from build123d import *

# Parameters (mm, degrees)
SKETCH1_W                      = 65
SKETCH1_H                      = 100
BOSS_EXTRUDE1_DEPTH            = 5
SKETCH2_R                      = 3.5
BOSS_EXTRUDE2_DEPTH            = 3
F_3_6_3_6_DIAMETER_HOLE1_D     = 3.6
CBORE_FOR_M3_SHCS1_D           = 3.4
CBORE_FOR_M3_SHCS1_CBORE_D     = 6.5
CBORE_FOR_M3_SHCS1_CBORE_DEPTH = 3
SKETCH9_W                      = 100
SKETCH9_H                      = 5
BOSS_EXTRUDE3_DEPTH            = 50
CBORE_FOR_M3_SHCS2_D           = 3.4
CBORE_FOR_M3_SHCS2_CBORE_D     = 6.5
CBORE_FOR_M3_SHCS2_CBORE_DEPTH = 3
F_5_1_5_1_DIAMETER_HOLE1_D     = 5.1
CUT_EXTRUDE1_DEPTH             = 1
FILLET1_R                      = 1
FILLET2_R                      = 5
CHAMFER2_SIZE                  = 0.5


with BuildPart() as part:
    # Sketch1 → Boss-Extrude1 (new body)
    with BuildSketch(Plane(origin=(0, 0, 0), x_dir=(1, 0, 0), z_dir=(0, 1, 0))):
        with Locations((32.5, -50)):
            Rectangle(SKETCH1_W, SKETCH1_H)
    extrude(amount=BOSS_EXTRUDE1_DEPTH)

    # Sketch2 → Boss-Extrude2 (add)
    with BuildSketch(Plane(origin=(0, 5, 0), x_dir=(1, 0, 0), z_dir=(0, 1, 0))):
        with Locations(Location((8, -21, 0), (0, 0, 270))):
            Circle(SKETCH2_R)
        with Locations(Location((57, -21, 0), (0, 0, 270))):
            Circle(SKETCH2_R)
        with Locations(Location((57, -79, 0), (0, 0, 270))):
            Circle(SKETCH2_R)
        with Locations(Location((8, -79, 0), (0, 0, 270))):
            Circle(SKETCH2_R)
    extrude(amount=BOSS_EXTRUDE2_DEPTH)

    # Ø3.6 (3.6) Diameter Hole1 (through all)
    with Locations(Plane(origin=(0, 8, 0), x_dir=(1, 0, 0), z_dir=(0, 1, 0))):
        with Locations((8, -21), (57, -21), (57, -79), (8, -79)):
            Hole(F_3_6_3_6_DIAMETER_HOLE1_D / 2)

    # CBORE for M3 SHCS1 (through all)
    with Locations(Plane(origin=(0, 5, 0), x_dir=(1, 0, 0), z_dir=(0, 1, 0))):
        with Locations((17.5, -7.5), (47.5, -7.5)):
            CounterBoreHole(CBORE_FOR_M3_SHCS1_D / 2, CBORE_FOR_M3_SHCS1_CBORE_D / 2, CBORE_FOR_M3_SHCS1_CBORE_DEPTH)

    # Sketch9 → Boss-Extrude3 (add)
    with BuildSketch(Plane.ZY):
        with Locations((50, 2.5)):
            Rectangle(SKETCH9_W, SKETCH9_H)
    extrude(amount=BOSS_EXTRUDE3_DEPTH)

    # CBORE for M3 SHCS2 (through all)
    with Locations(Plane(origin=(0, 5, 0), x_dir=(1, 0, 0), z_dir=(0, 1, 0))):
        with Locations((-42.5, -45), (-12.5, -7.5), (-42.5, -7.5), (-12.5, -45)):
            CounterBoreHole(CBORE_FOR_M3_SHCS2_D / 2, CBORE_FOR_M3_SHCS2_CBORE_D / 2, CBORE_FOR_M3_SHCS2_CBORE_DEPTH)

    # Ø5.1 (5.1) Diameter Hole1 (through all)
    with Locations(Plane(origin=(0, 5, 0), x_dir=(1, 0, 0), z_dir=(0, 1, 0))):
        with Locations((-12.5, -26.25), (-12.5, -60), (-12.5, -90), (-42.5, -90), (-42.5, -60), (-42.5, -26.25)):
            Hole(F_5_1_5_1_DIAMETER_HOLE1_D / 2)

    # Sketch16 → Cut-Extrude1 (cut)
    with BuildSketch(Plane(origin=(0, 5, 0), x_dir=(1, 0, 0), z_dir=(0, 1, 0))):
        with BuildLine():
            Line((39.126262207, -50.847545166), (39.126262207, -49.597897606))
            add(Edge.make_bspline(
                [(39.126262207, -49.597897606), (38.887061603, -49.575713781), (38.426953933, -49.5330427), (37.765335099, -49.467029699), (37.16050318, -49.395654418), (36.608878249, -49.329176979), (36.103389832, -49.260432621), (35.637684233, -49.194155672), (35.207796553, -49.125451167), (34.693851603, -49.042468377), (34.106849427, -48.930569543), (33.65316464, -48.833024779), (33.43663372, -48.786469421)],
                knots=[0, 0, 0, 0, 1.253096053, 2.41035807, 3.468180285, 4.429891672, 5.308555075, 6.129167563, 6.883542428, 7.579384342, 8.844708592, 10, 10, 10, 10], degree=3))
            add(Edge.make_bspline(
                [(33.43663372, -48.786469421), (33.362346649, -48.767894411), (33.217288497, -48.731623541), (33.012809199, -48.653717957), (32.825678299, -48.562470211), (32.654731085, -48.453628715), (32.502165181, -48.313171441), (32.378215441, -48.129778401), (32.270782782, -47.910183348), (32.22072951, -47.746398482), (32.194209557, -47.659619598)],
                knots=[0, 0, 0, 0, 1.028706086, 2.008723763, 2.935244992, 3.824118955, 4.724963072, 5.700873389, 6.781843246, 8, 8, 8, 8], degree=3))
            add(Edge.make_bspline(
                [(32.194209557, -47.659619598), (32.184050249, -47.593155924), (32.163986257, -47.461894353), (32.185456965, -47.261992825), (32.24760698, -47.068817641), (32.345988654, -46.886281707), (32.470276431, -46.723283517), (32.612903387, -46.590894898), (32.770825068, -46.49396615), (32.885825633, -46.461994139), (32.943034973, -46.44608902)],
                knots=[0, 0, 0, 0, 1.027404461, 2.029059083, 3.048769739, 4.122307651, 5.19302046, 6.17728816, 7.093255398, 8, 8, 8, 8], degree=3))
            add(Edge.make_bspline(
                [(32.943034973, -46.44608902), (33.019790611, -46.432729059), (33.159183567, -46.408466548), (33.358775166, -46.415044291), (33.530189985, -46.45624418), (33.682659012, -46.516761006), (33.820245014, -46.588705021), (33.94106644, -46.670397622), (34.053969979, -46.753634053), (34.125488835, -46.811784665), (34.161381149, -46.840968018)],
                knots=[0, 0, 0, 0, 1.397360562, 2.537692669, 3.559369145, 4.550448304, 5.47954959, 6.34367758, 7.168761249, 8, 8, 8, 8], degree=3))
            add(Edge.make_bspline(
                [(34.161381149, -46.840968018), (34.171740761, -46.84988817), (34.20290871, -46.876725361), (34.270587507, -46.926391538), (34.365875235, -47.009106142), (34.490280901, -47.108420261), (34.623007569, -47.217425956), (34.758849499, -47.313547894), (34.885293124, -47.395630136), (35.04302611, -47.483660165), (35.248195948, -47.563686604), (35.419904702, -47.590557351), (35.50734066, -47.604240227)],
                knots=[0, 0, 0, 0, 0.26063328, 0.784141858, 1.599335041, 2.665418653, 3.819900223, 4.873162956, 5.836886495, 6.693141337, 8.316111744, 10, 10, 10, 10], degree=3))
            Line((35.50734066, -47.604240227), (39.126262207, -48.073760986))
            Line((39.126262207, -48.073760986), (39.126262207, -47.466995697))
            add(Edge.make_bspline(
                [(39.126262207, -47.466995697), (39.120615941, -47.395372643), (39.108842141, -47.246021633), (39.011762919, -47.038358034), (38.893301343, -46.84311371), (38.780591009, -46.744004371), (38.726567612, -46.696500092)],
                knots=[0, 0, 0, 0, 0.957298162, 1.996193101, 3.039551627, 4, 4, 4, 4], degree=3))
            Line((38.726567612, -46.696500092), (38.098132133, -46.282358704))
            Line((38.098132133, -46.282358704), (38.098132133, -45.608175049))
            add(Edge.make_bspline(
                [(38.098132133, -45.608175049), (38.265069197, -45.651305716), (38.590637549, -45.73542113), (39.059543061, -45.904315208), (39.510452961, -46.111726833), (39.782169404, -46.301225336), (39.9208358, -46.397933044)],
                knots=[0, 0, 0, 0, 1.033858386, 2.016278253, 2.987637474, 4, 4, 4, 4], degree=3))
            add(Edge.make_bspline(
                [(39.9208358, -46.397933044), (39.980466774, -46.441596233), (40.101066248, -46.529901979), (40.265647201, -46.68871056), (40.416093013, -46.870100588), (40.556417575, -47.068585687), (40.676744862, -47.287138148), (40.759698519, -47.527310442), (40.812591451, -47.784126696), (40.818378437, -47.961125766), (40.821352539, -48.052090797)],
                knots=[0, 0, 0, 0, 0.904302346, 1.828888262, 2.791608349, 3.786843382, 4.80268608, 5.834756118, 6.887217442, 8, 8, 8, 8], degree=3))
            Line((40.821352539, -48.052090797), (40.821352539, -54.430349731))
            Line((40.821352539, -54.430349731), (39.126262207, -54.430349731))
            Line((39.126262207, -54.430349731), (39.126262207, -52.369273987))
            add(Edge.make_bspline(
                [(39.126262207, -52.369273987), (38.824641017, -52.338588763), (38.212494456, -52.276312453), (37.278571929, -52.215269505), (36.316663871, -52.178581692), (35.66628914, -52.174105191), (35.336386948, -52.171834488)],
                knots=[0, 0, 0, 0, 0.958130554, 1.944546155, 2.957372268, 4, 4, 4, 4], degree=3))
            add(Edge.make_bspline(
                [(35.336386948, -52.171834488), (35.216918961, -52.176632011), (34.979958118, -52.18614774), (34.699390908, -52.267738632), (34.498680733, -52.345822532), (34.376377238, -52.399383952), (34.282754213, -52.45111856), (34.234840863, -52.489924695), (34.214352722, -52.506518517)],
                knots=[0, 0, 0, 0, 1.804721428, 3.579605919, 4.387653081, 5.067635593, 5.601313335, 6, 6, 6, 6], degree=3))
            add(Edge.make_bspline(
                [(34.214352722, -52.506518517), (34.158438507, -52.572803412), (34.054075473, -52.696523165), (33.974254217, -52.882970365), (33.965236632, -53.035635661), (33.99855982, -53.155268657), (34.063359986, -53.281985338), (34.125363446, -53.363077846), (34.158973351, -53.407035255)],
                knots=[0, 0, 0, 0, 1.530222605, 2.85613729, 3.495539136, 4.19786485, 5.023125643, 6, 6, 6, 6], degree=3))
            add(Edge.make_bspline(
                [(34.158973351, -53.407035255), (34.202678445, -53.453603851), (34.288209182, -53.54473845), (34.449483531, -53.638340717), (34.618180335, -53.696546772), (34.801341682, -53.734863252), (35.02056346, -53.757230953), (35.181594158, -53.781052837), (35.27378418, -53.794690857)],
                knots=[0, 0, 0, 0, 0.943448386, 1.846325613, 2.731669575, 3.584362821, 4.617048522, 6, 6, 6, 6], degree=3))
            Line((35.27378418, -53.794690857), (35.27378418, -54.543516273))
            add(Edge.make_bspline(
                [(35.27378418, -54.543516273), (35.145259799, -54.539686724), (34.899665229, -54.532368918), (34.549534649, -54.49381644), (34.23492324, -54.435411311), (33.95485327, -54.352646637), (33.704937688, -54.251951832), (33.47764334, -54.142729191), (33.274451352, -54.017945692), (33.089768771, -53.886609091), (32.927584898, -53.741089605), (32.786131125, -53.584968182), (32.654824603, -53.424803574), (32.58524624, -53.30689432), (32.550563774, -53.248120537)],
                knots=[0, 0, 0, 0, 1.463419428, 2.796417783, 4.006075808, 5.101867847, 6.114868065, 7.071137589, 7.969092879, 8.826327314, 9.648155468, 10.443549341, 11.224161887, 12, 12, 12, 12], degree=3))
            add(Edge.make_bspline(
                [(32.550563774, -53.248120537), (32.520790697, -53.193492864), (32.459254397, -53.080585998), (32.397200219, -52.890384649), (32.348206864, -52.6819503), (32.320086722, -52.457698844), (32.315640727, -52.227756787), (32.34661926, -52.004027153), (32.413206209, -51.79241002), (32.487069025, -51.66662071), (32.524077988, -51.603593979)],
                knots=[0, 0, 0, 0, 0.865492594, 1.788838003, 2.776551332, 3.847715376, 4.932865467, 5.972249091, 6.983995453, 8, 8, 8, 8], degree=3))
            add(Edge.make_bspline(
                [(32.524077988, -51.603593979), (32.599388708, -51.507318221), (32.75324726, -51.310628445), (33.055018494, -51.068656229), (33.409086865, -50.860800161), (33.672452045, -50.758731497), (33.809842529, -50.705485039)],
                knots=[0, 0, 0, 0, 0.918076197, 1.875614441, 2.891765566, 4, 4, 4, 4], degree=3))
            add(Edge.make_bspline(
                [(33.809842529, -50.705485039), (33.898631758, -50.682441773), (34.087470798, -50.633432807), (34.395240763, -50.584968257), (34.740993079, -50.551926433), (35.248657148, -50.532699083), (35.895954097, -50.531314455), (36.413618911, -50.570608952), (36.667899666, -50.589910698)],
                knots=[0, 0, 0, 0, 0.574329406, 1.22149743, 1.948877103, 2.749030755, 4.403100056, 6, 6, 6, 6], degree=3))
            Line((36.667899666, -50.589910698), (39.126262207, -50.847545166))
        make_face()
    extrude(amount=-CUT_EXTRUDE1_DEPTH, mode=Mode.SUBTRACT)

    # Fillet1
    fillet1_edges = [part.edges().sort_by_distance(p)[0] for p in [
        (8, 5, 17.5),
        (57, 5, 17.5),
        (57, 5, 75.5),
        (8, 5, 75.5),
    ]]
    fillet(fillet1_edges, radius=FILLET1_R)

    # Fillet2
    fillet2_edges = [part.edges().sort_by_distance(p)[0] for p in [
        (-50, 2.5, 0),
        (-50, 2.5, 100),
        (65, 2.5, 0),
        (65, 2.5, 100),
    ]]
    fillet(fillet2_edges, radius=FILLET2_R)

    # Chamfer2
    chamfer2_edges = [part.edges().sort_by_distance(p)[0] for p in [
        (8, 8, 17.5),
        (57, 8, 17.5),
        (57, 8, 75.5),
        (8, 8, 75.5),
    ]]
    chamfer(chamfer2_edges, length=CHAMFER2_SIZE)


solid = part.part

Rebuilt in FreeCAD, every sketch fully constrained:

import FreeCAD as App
import Part
import Sketcher
Q = App.Units.Quantity


def edges_at(feature, points):
    """Names of the edges that pass closest to the given points."""
    edges = feature.Shape.Edges
    near = lambda p: min(range(len(edges)), key=lambda i: edges[i].distToShape(Part.Vertex(*p))[0])
    return sorted({f"Edge{near(p) + 1}" for p in points})


def add_polygon(sketch, points):
    """Adds a closed chain of lines whose ends are joined by coincident constraints."""
    first, n = sketch.GeometryCount, len(points)
    for a, b in zip(points, points[1:] + points[:1]):
        sketch.addGeometry(Part.LineSegment(App.Vector(*a, 0), App.Vector(*b, 0)), False)
    for i in range(n):
        sketch.addConstraint(Sketcher.Constraint("Coincident", first + i, 2, first + (i + 1) % n, 1))

doc = App.newDocument("Part")
params = doc.addObject("Spreadsheet::Sheet", "Params")
for row, (alias, value) in enumerate([
    ("sketch1_width", "65 mm"),
    ("sketch1_height", "100 mm"),
    ("pad1_length", "5 mm"),
    ("sketch2_diameter", "7 mm"),
    ("pad2_length", "3 mm"),
    ("sketch3_diameter", "3.6 mm"),
    ("hole_diameter", "3.6 mm"),
    ("sketch4_diameter", "3.4 mm"),
    ("hole2_diameter", "3.4 mm"),
    ("hole2_cbore_diameter", "6.5 mm"),
    ("hole2_cbore_depth", "3 mm"),
    ("sketch5_width", "5 mm"),
    ("sketch5_height", "100 mm"),
    ("pad3_length", "50 mm"),
    ("sketch6_diameter", "3.4 mm"),
    ("hole3_diameter", "3.4 mm"),
    ("hole3_cbore_diameter", "6.5 mm"),
    ("hole3_cbore_depth", "3 mm"),
    ("sketch7_diameter", "5.1 mm"),
    ("hole4_diameter", "5.1 mm"),
    ("pocket1_length", "1 mm"),
    ("fillet_radius", "1 mm"),
    ("fillet2_radius", "5 mm"),
    ("chamfer_size", "0.5 mm"),
], start=1):
    params.set(f"A{row}", alias)
    params.set(f"B{row}", "=" + value)
    params.setAlias(f"B{row}", alias)

body = doc.addObject("PartDesign::Body", "Body")

# Sketch on XZ plane
sketch1 = body.newObject("Sketcher::SketchObject", "Sketch")
sketch1.AttachmentSupport = (doc.getObject("XZ_Plane"), [""])
sketch1.MapMode = "FlatFace"
add_polygon(sketch1, [(0, 0), (0, 100), (65, 100), (65, 0)])  # lines 0-3
sketch1.addConstraint(Sketcher.Constraint("Vertical", 0))
sketch1.addConstraint(Sketcher.Constraint("Horizontal", 1))
sketch1.addConstraint(Sketcher.Constraint("Vertical", 2))
sketch1.addConstraint(Sketcher.Constraint("Horizontal", 3))
sketch1.addConstraint(Sketcher.Constraint("Coincident", 3, 2, -1, 1))
sketch1.addConstraint(Sketcher.Constraint("DistanceX", 1, 1, 1, 2, Q("65 mm")))
sketch1.addConstraint(Sketcher.Constraint("DistanceY", 0, 1, 0, 2, Q("100 mm")))
sketch1.setExpression("Constraints[9]", "Params.sketch1_width")
sketch1.setExpression("Constraints[10]", "Params.sketch1_height")
pad1 = body.newObject("PartDesign::Pad", "Pad")
pad1.Profile = sketch1
pad1.setExpression("Length", "Params.pad1_length")
pad1.Reversed = True

# Sketch on XZ plane
sketch2 = body.newObject("Sketcher::SketchObject", "Sketch001")
sketch2.AttachmentSupport = (doc.getObject("XZ_Plane"), [""])
sketch2.MapMode = "FlatFace"
sketch2.AttachmentOffset = App.Placement(App.Vector(0, 0, -5), App.Rotation())
sketch2.addGeometry(Part.Circle(App.Vector(8, 21, 0), App.Vector(0, 0, 1), 3.5), False)
sketch2.addGeometry(Part.Circle(App.Vector(57, 21, 0), App.Vector(0, 0, 1), 3.5), False)
sketch2.addGeometry(Part.Circle(App.Vector(57, 79, 0), App.Vector(0, 0, 1), 3.5), False)
sketch2.addGeometry(Part.Circle(App.Vector(8, 79, 0), App.Vector(0, 0, 1), 3.5), False)
sketch2.addConstraint(Sketcher.Constraint("Equal", 0, 1))
sketch2.addConstraint(Sketcher.Constraint("Equal", 1, 2))
sketch2.addConstraint(Sketcher.Constraint("Equal", 2, 3))
sketch2.addConstraint(Sketcher.Constraint("Horizontal", 0, 3, 1, 3))
sketch2.addConstraint(Sketcher.Constraint("Horizontal", 2, 3, 3, 3))
sketch2.addConstraint(Sketcher.Constraint("Vertical", 1, 3, 2, 3))
sketch2.addConstraint(Sketcher.Constraint("Vertical", 0, 3, 3, 3))
sketch2.addConstraint(Sketcher.Constraint("Diameter", 0, Q("7 mm")))
sketch2.addConstraint(Sketcher.Constraint("DistanceX", -1, 1, 0, 3, Q("8 mm")))
sketch2.addConstraint(Sketcher.Constraint("DistanceY", -1, 1, 0, 3, Q("21 mm")))
sketch2.addConstraint(Sketcher.Constraint("DistanceX", -1, 1, 1, 3, Q("57 mm")))
sketch2.addConstraint(Sketcher.Constraint("DistanceY", -1, 1, 2, 3, Q("79 mm")))
sketch2.setExpression("Constraints[7]", "Params.sketch2_diameter")
pad2 = body.newObject("PartDesign::Pad", "Pad001")
pad2.Profile = sketch2
pad2.setExpression("Length", "Params.pad2_length")
pad2.Reversed = True

# Sketch on XZ plane
sketch3 = body.newObject("Sketcher::SketchObject", "Sketch002")
sketch3.AttachmentSupport = (doc.getObject("XZ_Plane"), [""])
sketch3.MapMode = "FlatFace"
sketch3.AttachmentOffset = App.Placement(App.Vector(0, 0, -8), App.Rotation())
sketch3.addGeometry(Part.Circle(App.Vector(8, 21, 0), App.Vector(0, 0, 1), 1.8), False)
sketch3.addGeometry(Part.Circle(App.Vector(57, 21, 0), App.Vector(0, 0, 1), 1.8), False)
sketch3.addGeometry(Part.Circle(App.Vector(57, 79, 0), App.Vector(0, 0, 1), 1.8), False)
sketch3.addGeometry(Part.Circle(App.Vector(8, 79, 0), App.Vector(0, 0, 1), 1.8), False)
sketch3.addConstraint(Sketcher.Constraint("Equal", 0, 1))
sketch3.addConstraint(Sketcher.Constraint("Equal", 1, 2))
sketch3.addConstraint(Sketcher.Constraint("Equal", 2, 3))
sketch3.addConstraint(Sketcher.Constraint("Horizontal", 0, 3, 1, 3))
sketch3.addConstraint(Sketcher.Constraint("Horizontal", 2, 3, 3, 3))
sketch3.addConstraint(Sketcher.Constraint("Vertical", 1, 3, 2, 3))
sketch3.addConstraint(Sketcher.Constraint("Vertical", 0, 3, 3, 3))
sketch3.addConstraint(Sketcher.Constraint("Diameter", 0, Q("3.6 mm")))
sketch3.addConstraint(Sketcher.Constraint("DistanceX", -1, 1, 0, 3, Q("8 mm")))
sketch3.addConstraint(Sketcher.Constraint("DistanceY", -1, 1, 0, 3, Q("21 mm")))
sketch3.addConstraint(Sketcher.Constraint("DistanceX", -1, 1, 1, 3, Q("57 mm")))
sketch3.addConstraint(Sketcher.Constraint("DistanceY", -1, 1, 2, 3, Q("79 mm")))
sketch3.setExpression("Constraints[7]", "Params.sketch3_diameter")
doc.recompute()
hole = body.newObject("PartDesign::Hole", "Hole")
hole.Profile = sketch3
hole.ThreadType = "None"
hole.setExpression("Diameter", "Params.hole_diameter")
hole.DepthType = "ThroughAll"
hole.Reversed = True

# Sketch on XZ plane
sketch4 = body.newObject("Sketcher::SketchObject", "Sketch003")
sketch4.AttachmentSupport = (doc.getObject("XZ_Plane"), [""])
sketch4.MapMode = "FlatFace"
sketch4.AttachmentOffset = App.Placement(App.Vector(0, 0, -5), App.Rotation())
sketch4.addGeometry(Part.Circle(App.Vector(17.5, 7.5, 0), App.Vector(0, 0, 1), 1.7), False)
sketch4.addGeometry(Part.Circle(App.Vector(47.5, 7.5, 0), App.Vector(0, 0, 1), 1.7), False)
sketch4.addConstraint(Sketcher.Constraint("Equal", 0, 1))
sketch4.addConstraint(Sketcher.Constraint("Horizontal", 0, 3, 1, 3))
sketch4.addConstraint(Sketcher.Constraint("Diameter", 0, Q("3.4 mm")))
sketch4.addConstraint(Sketcher.Constraint("DistanceX", 0, 3, 1, 3, Q("30 mm")))
sketch4.addConstraint(Sketcher.Constraint("DistanceX", -1, 1, 0, 3, Q("17.5 mm")))
sketch4.addConstraint(Sketcher.Constraint("DistanceY", -1, 1, 0, 3, Q("7.5 mm")))
sketch4.setExpression("Constraints[2]", "Params.sketch4_diameter")
doc.recompute()
hole2 = body.newObject("PartDesign::Hole", "Hole001")
hole2.Profile = sketch4
hole2.ThreadType = "None"
hole2.setExpression("Diameter", "Params.hole2_diameter")
hole2.DepthType = "ThroughAll"
hole2.HoleCutType = "Counterbore"
hole2.setExpression("HoleCutDiameter", "Params.hole2_cbore_diameter")
hole2.setExpression("HoleCutDepth", "Params.hole2_cbore_depth")
hole2.Reversed = True

# Sketch on YZ plane
sketch5 = body.newObject("Sketcher::SketchObject", "Sketch004")
sketch5.AttachmentSupport = (doc.getObject("YZ_Plane"), [""])
sketch5.MapMode = "FlatFace"
add_polygon(sketch5, [(5, 0), (0, 0), (0, 100), (5, 100)])  # lines 0-3
sketch5.addConstraint(Sketcher.Constraint("Horizontal", 0))
sketch5.addConstraint(Sketcher.Constraint("Vertical", 1))
sketch5.addConstraint(Sketcher.Constraint("Horizontal", 2))
sketch5.addConstraint(Sketcher.Constraint("Vertical", 3))
sketch5.addConstraint(Sketcher.Constraint("Coincident", 0, 2, -1, 1))
sketch5.addConstraint(Sketcher.Constraint("DistanceX", 0, 2, 0, 1, Q("5 mm")))
sketch5.addConstraint(Sketcher.Constraint("DistanceY", 1, 1, 1, 2, Q("100 mm")))
sketch5.setExpression("Constraints[9]", "Params.sketch5_width")
sketch5.setExpression("Constraints[10]", "Params.sketch5_height")
pad3 = body.newObject("PartDesign::Pad", "Pad002")
pad3.Profile = sketch5
pad3.setExpression("Length", "Params.pad3_length")
pad3.Reversed = True

# Sketch on XZ plane
sketch6 = body.newObject("Sketcher::SketchObject", "Sketch005")
sketch6.AttachmentSupport = (doc.getObject("XZ_Plane"), [""])
sketch6.MapMode = "FlatFace"
sketch6.AttachmentOffset = App.Placement(App.Vector(0, 0, -5), App.Rotation())
sketch6.addGeometry(Part.Circle(App.Vector(-42.5, 45, 0), App.Vector(0, 0, 1), 1.7), False)
sketch6.addGeometry(Part.Circle(App.Vector(-12.5, 7.5, 0), App.Vector(0, 0, 1), 1.7), False)
sketch6.addGeometry(Part.Circle(App.Vector(-42.5, 7.5, 0), App.Vector(0, 0, 1), 1.7), False)
sketch6.addGeometry(Part.Circle(App.Vector(-12.5, 45, 0), App.Vector(0, 0, 1), 1.7), False)
sketch6.addConstraint(Sketcher.Constraint("Equal", 0, 1))
sketch6.addConstraint(Sketcher.Constraint("Equal", 1, 2))
sketch6.addConstraint(Sketcher.Constraint("Equal", 2, 3))
sketch6.addConstraint(Sketcher.Constraint("Horizontal", 1, 3, 2, 3))
sketch6.addConstraint(Sketcher.Constraint("Horizontal", 0, 3, 3, 3))
sketch6.addConstraint(Sketcher.Constraint("Vertical", 0, 3, 2, 3))
sketch6.addConstraint(Sketcher.Constraint("Vertical", 1, 3, 3, 3))
sketch6.addConstraint(Sketcher.Constraint("Diameter", 0, Q("3.4 mm")))
sketch6.addConstraint(Sketcher.Constraint("DistanceY", -1, 1, 0, 3, Q("45 mm")))
sketch6.addConstraint(Sketcher.Constraint("DistanceX", 0, 3, 1, 3, Q("30 mm")))
sketch6.addConstraint(Sketcher.Constraint("DistanceX", 0, 3, -1, 1, Q("42.5 mm")))
sketch6.addConstraint(Sketcher.Constraint("DistanceY", -1, 1, 1, 3, Q("7.5 mm")))
sketch6.setExpression("Constraints[7]", "Params.sketch6_diameter")
doc.recompute()
hole3 = body.newObject("PartDesign::Hole", "Hole002")
hole3.Profile = sketch6
hole3.ThreadType = "None"
hole3.setExpression("Diameter", "Params.hole3_diameter")
hole3.DepthType = "ThroughAll"
hole3.HoleCutType = "Counterbore"
hole3.setExpression("HoleCutDiameter", "Params.hole3_cbore_diameter")
hole3.setExpression("HoleCutDepth", "Params.hole3_cbore_depth")
hole3.Reversed = True

# Sketch on XZ plane
sketch7 = body.newObject("Sketcher::SketchObject", "Sketch006")
sketch7.AttachmentSupport = (doc.getObject("XZ_Plane"), [""])
sketch7.MapMode = "FlatFace"
sketch7.AttachmentOffset = App.Placement(App.Vector(0, 0, -5), App.Rotation())
sketch7.addGeometry(Part.Circle(App.Vector(-12.5, 26.2, 0), App.Vector(0, 0, 1), 2.5), False)
sketch7.addGeometry(Part.Circle(App.Vector(-12.5, 60, 0), App.Vector(0, 0, 1), 2.5), False)
sketch7.addGeometry(Part.Circle(App.Vector(-12.5, 90, 0), App.Vector(0, 0, 1), 2.5), False)
sketch7.addGeometry(Part.Circle(App.Vector(-42.5, 90, 0), App.Vector(0, 0, 1), 2.5), False)
sketch7.addGeometry(Part.Circle(App.Vector(-42.5, 60, 0), App.Vector(0, 0, 1), 2.5), False)
sketch7.addGeometry(Part.Circle(App.Vector(-42.5, 26.2, 0), App.Vector(0, 0, 1), 2.5), False)
sketch7.addConstraint(Sketcher.Constraint("Equal", 0, 1))
sketch7.addConstraint(Sketcher.Constraint("Equal", 1, 2))
sketch7.addConstraint(Sketcher.Constraint("Equal", 2, 3))
sketch7.addConstraint(Sketcher.Constraint("Equal", 3, 4))
sketch7.addConstraint(Sketcher.Constraint("Equal", 4, 5))
sketch7.addConstraint(Sketcher.Constraint("Horizontal", 2, 3, 3, 3))
sketch7.addConstraint(Sketcher.Constraint("Horizontal", 1, 3, 4, 3))
sketch7.addConstraint(Sketcher.Constraint("Horizontal", 0, 3, 5, 3))
sketch7.addConstraint(Sketcher.Constraint("Vertical", 0, 3, 1, 3))
sketch7.addConstraint(Sketcher.Constraint("Vertical", 1, 3, 2, 3))
sketch7.addConstraint(Sketcher.Constraint("Vertical", 3, 3, 4, 3))
sketch7.addConstraint(Sketcher.Constraint("Vertical", 4, 3, 5, 3))
sketch7.addConstraint(Sketcher.Constraint("Diameter", 0, Q("5.1 mm")))
sketch7.addConstraint(Sketcher.Constraint("DistanceY", -1, 1, 1, 3, Q("60 mm")))
sketch7.addConstraint(Sketcher.Constraint("DistanceY", -1, 1, 2, 3, Q("90 mm")))
sketch7.addConstraint(Sketcher.Constraint("DistanceX", 3, 3, 2, 3, Q("30 mm")))
sketch7.addConstraint(Sketcher.Constraint("DistanceX", 0, 3, -1, 1, Q("12.5 mm")))
sketch7.addConstraint(Sketcher.Constraint("DistanceY", -1, 1, 0, 3, Q("26.25 mm")))
sketch7.setExpression("Constraints[12]", "Params.sketch7_diameter")
doc.recompute()
hole4 = body.newObject("PartDesign::Hole", "Hole003")
hole4.Profile = sketch7
hole4.ThreadType = "None"
hole4.setExpression("Diameter", "Params.hole4_diameter")
hole4.DepthType = "ThroughAll"
hole4.Reversed = True

# Sketch on XZ plane
sketch8 = body.newObject("Sketcher::SketchObject", "Sketch007")
sketch8.AttachmentSupport = (doc.getObject("XZ_Plane"), [""])
sketch8.MapMode = "FlatFace"
sketch8.AttachmentOffset = App.Placement(App.Vector(0, 0, -5), App.Rotation())
sketch8.addGeometry(Part.LineSegment(App.Vector(39.126262, 49.597898, 0), App.Vector(39.126262, 50.847545, 0)), False)
sketch8.addGeometry(Part.LineSegment(App.Vector(39.126262, 50.847545, 0), App.Vector(36.6679, 50.589911, 0)), False)
sketch8.addGeometry(Part.BSplineCurve([App.Vector(33.809843, 50.705485, 0), App.Vector(33.898632, 50.682442, 0), App.Vector(34.087471, 50.633433, 0), App.Vector(34.395241, 50.584968, 0), App.Vector(34.740993, 50.551926, 0), App.Vector(35.248657, 50.532699, 0), App.Vector(35.895954, 50.531314, 0), App.Vector(36.413619, 50.570609, 0), App.Vector(36.6679, 50.589911, 0)], [4, 1, 1, 1, 1, 1, 4], [0, 0.574329406, 1.22149743, 1.948877103, 2.749030755, 4.403100056, 6], False, 3, [1, 1, 1, 1, 1, 1, 1, 1, 1], False), False)
sketch8.addGeometry(Part.BSplineCurve([App.Vector(32.524078, 51.603594, 0), App.Vector(32.599389, 51.507318, 0), App.Vector(32.753247, 51.310628, 0), App.Vector(33.055018, 51.068656, 0), App.Vector(33.409087, 50.8608, 0), App.Vector(33.672452, 50.758731, 0), App.Vector(33.809843, 50.705485, 0)], [4, 1, 1, 1, 4], [0, 0.918076197, 1.875614441, 2.891765566, 4], False, 3, [1, 1, 1, 1, 1, 1, 1], False), False)
sketch8.addGeometry(Part.BSplineCurve([App.Vector(32.550564, 53.248121, 0), App.Vector(32.520791, 53.193493, 0), App.Vector(32.459254, 53.080586, 0), App.Vector(32.3972, 52.890385, 0), App.Vector(32.348207, 52.68195, 0), App.Vector(32.320087, 52.457699, 0), App.Vector(32.315641, 52.227757, 0), App.Vector(32.346619, 52.004027, 0), App.Vector(32.413206, 51.79241, 0), App.Vector(32.487069, 51.666621, 0), App.Vector(32.524078, 51.603594, 0)], [4, 1, 1, 1, 1, 1, 1, 1, 4], [0, 0.865492594, 1.788838003, 2.776551332, 3.847715376, 4.932865467, 5.972249091, 6.983995453, 8], False, 3, [1, 1, 1, 1, 1, 1, 1, 1, 1, 1, 1], False), False)
sketch8.addGeometry(Part.BSplineCurve([App.Vector(35.273784, 54.543516, 0), App.Vector(35.14526, 54.539687, 0), App.Vector(34.899665, 54.532369, 0), App.Vector(34.549535, 54.493816, 0), App.Vector(34.234923, 54.435411, 0), App.Vector(33.954853, 54.352647, 0), App.Vector(33.704938, 54.251952, 0), App.Vector(33.477643, 54.142729, 0), App.Vector(33.274451, 54.017946, 0), App.Vector(33.089769, 53.886609, 0), App.Vector(32.927585, 53.74109, 0), App.Vector(32.786131, 53.584968, 0), App.Vector(32.654825, 53.424804, 0), App.Vector(32.585246, 53.306894, 0), App.Vector(32.550564, 53.248121, 0)], [4, 1, 1, 1, 1, 1, 1, 1, 1, 1, 1, 1, 4], [0, 1.463419428, 2.796417783, 4.006075808, 5.101867847, 6.114868065, 7.071137589, 7.969092879, 8.826327314, 9.648155468, 10.443549341, 11.224161887, 12], False, 3, [1, 1, 1, 1, 1, 1, 1, 1, 1, 1, 1, 1, 1, 1, 1], False), False)
sketch8.addGeometry(Part.LineSegment(App.Vector(35.273784, 54.543516, 0), App.Vector(35.273784, 53.794691, 0)), False)
sketch8.addGeometry(Part.BSplineCurve([App.Vector(34.158973, 53.407035, 0), App.Vector(34.202678, 53.453604, 0), App.Vector(34.288209, 53.544738, 0), App.Vector(34.449484, 53.638341, 0), App.Vector(34.61818, 53.696547, 0), App.Vector(34.801342, 53.734863, 0), App.Vector(35.020563, 53.757231, 0), App.Vector(35.181594, 53.781053, 0), App.Vector(35.273784, 53.794691, 0)], [4, 1, 1, 1, 1, 1, 4], [0, 0.943448386, 1.846325613, 2.731669575, 3.584362821, 4.617048522, 6], False, 3, [1, 1, 1, 1, 1, 1, 1, 1, 1], False), False)
sketch8.addGeometry(Part.BSplineCurve([App.Vector(34.214353, 52.506519, 0), App.Vector(34.158439, 52.572803, 0), App.Vector(34.054075, 52.696523, 0), App.Vector(33.974254, 52.88297, 0), App.Vector(33.965237, 53.035636, 0), App.Vector(33.99856, 53.155269, 0), App.Vector(34.06336, 53.281985, 0), App.Vector(34.125363, 53.363078, 0), App.Vector(34.158973, 53.407035, 0)], [4, 1, 1, 1, 1, 1, 4], [0, 1.530222605, 2.85613729, 3.495539136, 4.19786485, 5.023125643, 6], False, 3, [1, 1, 1, 1, 1, 1, 1, 1, 1], False), False)
sketch8.addGeometry(Part.BSplineCurve([App.Vector(35.336387, 52.171834, 0), App.Vector(35.216919, 52.176632, 0), App.Vector(34.979958, 52.186148, 0), App.Vector(34.699391, 52.267739, 0), App.Vector(34.498681, 52.345823, 0), App.Vector(34.376377, 52.399384, 0), App.Vector(34.282754, 52.451119, 0), App.Vector(34.234841, 52.489925, 0), App.Vector(34.214353, 52.506519, 0)], [4, 1, 1, 1, 1, 1, 4], [0, 1.804721428, 3.579605919, 4.387653081, 5.067635593, 5.601313335, 6], False, 3, [1, 1, 1, 1, 1, 1, 1, 1, 1], False), False)
sketch8.addGeometry(Part.BSplineCurve([App.Vector(39.126262, 52.369274, 0), App.Vector(38.824641, 52.338589, 0), App.Vector(38.212494, 52.276312, 0), App.Vector(37.278572, 52.21527, 0), App.Vector(36.316664, 52.178582, 0), App.Vector(35.666289, 52.174105, 0), App.Vector(35.336387, 52.171834, 0)], [4, 1, 1, 1, 4], [0, 0.958130554, 1.944546155, 2.957372268, 4], False, 3, [1, 1, 1, 1, 1, 1, 1], False), False)
sketch8.addGeometry(Part.LineSegment(App.Vector(39.126262, 52.369274, 0), App.Vector(39.126262, 54.43035, 0)), False)
sketch8.addGeometry(Part.LineSegment(App.Vector(39.126262, 54.43035, 0), App.Vector(40.821353, 54.43035, 0)), False)
sketch8.addGeometry(Part.LineSegment(App.Vector(40.821353, 54.43035, 0), App.Vector(40.821353, 48.052091, 0)), False)
sketch8.addGeometry(Part.BSplineCurve([App.Vector(39.920836, 46.397933, 0), App.Vector(39.980467, 46.441596, 0), App.Vector(40.101066, 46.529902, 0), App.Vector(40.265647, 46.688711, 0), App.Vector(40.416093, 46.870101, 0), App.Vector(40.556418, 47.068586, 0), App.Vector(40.676745, 47.287138, 0), App.Vector(40.759699, 47.52731, 0), App.Vector(40.812591, 47.784127, 0), App.Vector(40.818378, 47.961126, 0), App.Vector(40.821353, 48.052091, 0)], [4, 1, 1, 1, 1, 1, 1, 1, 4], [0, 0.904302346, 1.828888262, 2.791608349, 3.786843382, 4.80268608, 5.834756118, 6.887217442, 8], False, 3, [1, 1, 1, 1, 1, 1, 1, 1, 1, 1, 1], False), False)
sketch8.addGeometry(Part.BSplineCurve([App.Vector(38.098132, 45.608175, 0), App.Vector(38.265069, 45.651306, 0), App.Vector(38.590638, 45.735421, 0), App.Vector(39.059543, 45.904315, 0), App.Vector(39.510453, 46.111727, 0), App.Vector(39.782169, 46.301225, 0), App.Vector(39.920836, 46.397933, 0)], [4, 1, 1, 1, 4], [0, 1.033858386, 2.016278253, 2.987637474, 4], False, 3, [1, 1, 1, 1, 1, 1, 1], False), False)
sketch8.addGeometry(Part.LineSegment(App.Vector(38.098132, 45.608175, 0), App.Vector(38.098132, 46.282359, 0)), False)
sketch8.addGeometry(Part.LineSegment(App.Vector(38.098132, 46.282359, 0), App.Vector(38.726568, 46.6965, 0)), False)
sketch8.addGeometry(Part.BSplineCurve([App.Vector(39.126262, 47.466996, 0), App.Vector(39.120616, 47.395373, 0), App.Vector(39.108842, 47.246022, 0), App.Vector(39.011763, 47.038358, 0), App.Vector(38.893301, 46.843114, 0), App.Vector(38.780591, 46.744004, 0), App.Vector(38.726568, 46.6965, 0)], [4, 1, 1, 1, 4], [0, 0.957298162, 1.996193101, 3.039551627, 4], False, 3, [1, 1, 1, 1, 1, 1, 1], False), False)
sketch8.addGeometry(Part.LineSegment(App.Vector(39.126262, 47.466996, 0), App.Vector(39.126262, 48.073761, 0)), False)
sketch8.addGeometry(Part.LineSegment(App.Vector(39.126262, 48.073761, 0), App.Vector(35.507341, 47.60424, 0)), False)
sketch8.addGeometry(Part.BSplineCurve([App.Vector(34.161381, 46.840968, 0), App.Vector(34.171741, 46.849888, 0), App.Vector(34.202909, 46.876725, 0), App.Vector(34.270588, 46.926392, 0), App.Vector(34.365875, 47.009106, 0), App.Vector(34.490281, 47.10842, 0), App.Vector(34.623008, 47.217426, 0), App.Vector(34.758849, 47.313548, 0), App.Vector(34.885293, 47.39563, 0), App.Vector(35.043026, 47.48366, 0), App.Vector(35.248196, 47.563687, 0), App.Vector(35.419905, 47.590557, 0), App.Vector(35.507341, 47.60424, 0)], [4, 1, 1, 1, 1, 1, 1, 1, 1, 1, 4], [0, 0.26063328, 0.784141858, 1.599335041, 2.665418653, 3.819900223, 4.873162956, 5.836886495, 6.693141337, 8.316111744, 10], False, 3, [1, 1, 1, 1, 1, 1, 1, 1, 1, 1, 1, 1, 1], False), False)
sketch8.addGeometry(Part.BSplineCurve([App.Vector(32.943035, 46.446089, 0), App.Vector(33.019791, 46.432729, 0), App.Vector(33.159184, 46.408467, 0), App.Vector(33.358775, 46.415044, 0), App.Vector(33.53019, 46.456244, 0), App.Vector(33.682659, 46.516761, 0), App.Vector(33.820245, 46.588705, 0), App.Vector(33.941066, 46.670398, 0), App.Vector(34.05397, 46.753634, 0), App.Vector(34.125489, 46.811785, 0), App.Vector(34.161381, 46.840968, 0)], [4, 1, 1, 1, 1, 1, 1, 1, 4], [0, 1.397360562, 2.537692669, 3.559369145, 4.550448304, 5.47954959, 6.34367758, 7.168761249, 8], False, 3, [1, 1, 1, 1, 1, 1, 1, 1, 1, 1, 1], False), False)
sketch8.addGeometry(Part.BSplineCurve([App.Vector(32.19421, 47.65962, 0), App.Vector(32.18405, 47.593156, 0), App.Vector(32.163986, 47.461894, 0), App.Vector(32.185457, 47.261993, 0), App.Vector(32.247607, 47.068818, 0), App.Vector(32.345989, 46.886282, 0), App.Vector(32.470276, 46.723284, 0), App.Vector(32.612903, 46.590895, 0), App.Vector(32.770825, 46.493966, 0), App.Vector(32.885826, 46.461994, 0), App.Vector(32.943035, 46.446089, 0)], [4, 1, 1, 1, 1, 1, 1, 1, 4], [0, 1.027404461, 2.029059083, 3.048769739, 4.122307651, 5.19302046, 6.17728816, 7.093255398, 8], False, 3, [1, 1, 1, 1, 1, 1, 1, 1, 1, 1, 1], False), False)
sketch8.addGeometry(Part.BSplineCurve([App.Vector(33.436634, 48.786469, 0), App.Vector(33.362347, 48.767894, 0), App.Vector(33.217288, 48.731624, 0), App.Vector(33.012809, 48.653718, 0), App.Vector(32.825678, 48.56247, 0), App.Vector(32.654731, 48.453629, 0), App.Vector(32.502165, 48.313171, 0), App.Vector(32.378215, 48.129778, 0), App.Vector(32.270783, 47.910183, 0), App.Vector(32.22073, 47.746398, 0), App.Vector(32.19421, 47.65962, 0)], [4, 1, 1, 1, 1, 1, 1, 1, 4], [0, 1.028706086, 2.008723763, 2.935244992, 3.824118955, 4.724963072, 5.700873389, 6.781843246, 8], False, 3, [1, 1, 1, 1, 1, 1, 1, 1, 1, 1, 1], False), False)
sketch8.addGeometry(Part.BSplineCurve([App.Vector(39.126262, 49.597898, 0), App.Vector(38.887062, 49.575714, 0), App.Vector(38.426954, 49.533043, 0), App.Vector(37.765335, 49.46703, 0), App.Vector(37.160503, 49.395654, 0), App.Vector(36.608878, 49.329177, 0), App.Vector(36.10339, 49.260433, 0), App.Vector(35.637684, 49.194156, 0), App.Vector(35.207797, 49.125451, 0), App.Vector(34.693852, 49.042468, 0), App.Vector(34.106849, 48.93057, 0), App.Vector(33.653165, 48.833025, 0), App.Vector(33.436634, 48.786469, 0)], [4, 1, 1, 1, 1, 1, 1, 1, 1, 1, 4], [0, 1.253096053, 2.41035807, 3.468180285, 4.429891672, 5.308555075, 6.129167563, 6.883542428, 7.579384342, 8.844708592, 10], False, 3, [1, 1, 1, 1, 1, 1, 1, 1, 1, 1, 1, 1, 1], False), False)
sketch8.addConstraint(Sketcher.Constraint("Block", 2))
sketch8.addConstraint(Sketcher.Constraint("Block", 3))
sketch8.addConstraint(Sketcher.Constraint("Block", 4))
sketch8.addConstraint(Sketcher.Constraint("Block", 5))
sketch8.addConstraint(Sketcher.Constraint("Block", 7))
sketch8.addConstraint(Sketcher.Constraint("Block", 8))
sketch8.addConstraint(Sketcher.Constraint("Block", 9))
sketch8.addConstraint(Sketcher.Constraint("Block", 10))
sketch8.addConstraint(Sketcher.Constraint("Block", 14))
sketch8.addConstraint(Sketcher.Constraint("Block", 15))
sketch8.addConstraint(Sketcher.Constraint("Block", 18))
sketch8.addConstraint(Sketcher.Constraint("Block", 21))
sketch8.addConstraint(Sketcher.Constraint("Block", 22))
sketch8.addConstraint(Sketcher.Constraint("Block", 23))
sketch8.addConstraint(Sketcher.Constraint("Block", 24))
sketch8.addConstraint(Sketcher.Constraint("Block", 25))
sketch8.addConstraint(Sketcher.Constraint("Coincident", 0, 2, 1, 1))
sketch8.addConstraint(Sketcher.Constraint("Coincident", 1, 2, 2, 2))
sketch8.addConstraint(Sketcher.Constraint("Coincident", 5, 1, 6, 1))
sketch8.addConstraint(Sketcher.Constraint("Coincident", 6, 2, 7, 2))
sketch8.addConstraint(Sketcher.Constraint("Coincident", 10, 1, 11, 1))
sketch8.addConstraint(Sketcher.Constraint("Coincident", 11, 2, 12, 1))
sketch8.addConstraint(Sketcher.Constraint("Coincident", 12, 2, 13, 1))
sketch8.addConstraint(Sketcher.Constraint("Coincident", 13, 2, 14, 2))
sketch8.addConstraint(Sketcher.Constraint("Coincident", 15, 1, 16, 1))
sketch8.addConstraint(Sketcher.Constraint("Coincident", 16, 2, 17, 1))
sketch8.addConstraint(Sketcher.Constraint("Coincident", 17, 2, 18, 2))
sketch8.addConstraint(Sketcher.Constraint("Coincident", 18, 1, 19, 1))
sketch8.addConstraint(Sketcher.Constraint("Coincident", 19, 2, 20, 1))
sketch8.addConstraint(Sketcher.Constraint("Coincident", 20, 2, 21, 2))
sketch8.addConstraint(Sketcher.Constraint("Coincident", 25, 1, 0, 1))
sketch8.addConstraint(Sketcher.Constraint("Vertical", 0))
sketch8.addConstraint(Sketcher.Constraint("Vertical", 11))
sketch8.addConstraint(Sketcher.Constraint("Horizontal", 12))
sketch8.addConstraint(Sketcher.Constraint("Vertical", 13))
sketch8.addConstraint(Sketcher.Constraint("Vertical", 16))
sketch8.addConstraint(Sketcher.Constraint("Vertical", 19))
sketch8.addConstraint(Sketcher.Constraint("DistanceY", 13, 2, 13, 1, Q("6.378259 mm")))
sketch8.addConstraint(Sketcher.Constraint("DistanceY", 0, 1, 0, 2, Q("1.249648 mm")))
sketch8.addConstraint(Sketcher.Constraint("DistanceY", 16, 1, 16, 2, Q("0.674184 mm")))
sketch8.addConstraint(Sketcher.Constraint("DistanceY", 19, 1, 19, 2, Q("0.606765 mm")))
pocket1 = body.newObject("PartDesign::Pocket", "Pocket")
pocket1.Profile = sketch8
pocket1.setExpression("Length", "Params.pocket1_length")
pocket1.Reversed = True
doc.recompute()

fillet = body.newObject("PartDesign::Fillet", "Fillet")
fillet.Base = (pocket1, edges_at(pocket1, [
    (8, 5, 17.5),
    (57, 5, 17.5),
    (57, 5, 75.5),
    (8, 5, 75.5),
]))
fillet.setExpression("Radius", "Params.fillet_radius")
doc.recompute()

fillet2 = body.newObject("PartDesign::Fillet", "Fillet001")
fillet2.Base = (fillet, edges_at(fillet, [
    (-50, 2.5, 0),
    (-50, 2.5, 100),
    (65, 2.5, 0),
    (65, 2.5, 100),
]))
fillet2.setExpression("Radius", "Params.fillet2_radius")
doc.recompute()

chamfer = body.newObject("PartDesign::Chamfer", "Chamfer")
chamfer.Base = (fillet2, edges_at(fillet2, [
    (8, 8, 17.5),
    (57, 8, 17.5),
    (57, 8, 75.5),
    (8, 8, 75.5),
]))
chamfer.setExpression("Size", "Params.chamfer_size")

doc.recompute()
